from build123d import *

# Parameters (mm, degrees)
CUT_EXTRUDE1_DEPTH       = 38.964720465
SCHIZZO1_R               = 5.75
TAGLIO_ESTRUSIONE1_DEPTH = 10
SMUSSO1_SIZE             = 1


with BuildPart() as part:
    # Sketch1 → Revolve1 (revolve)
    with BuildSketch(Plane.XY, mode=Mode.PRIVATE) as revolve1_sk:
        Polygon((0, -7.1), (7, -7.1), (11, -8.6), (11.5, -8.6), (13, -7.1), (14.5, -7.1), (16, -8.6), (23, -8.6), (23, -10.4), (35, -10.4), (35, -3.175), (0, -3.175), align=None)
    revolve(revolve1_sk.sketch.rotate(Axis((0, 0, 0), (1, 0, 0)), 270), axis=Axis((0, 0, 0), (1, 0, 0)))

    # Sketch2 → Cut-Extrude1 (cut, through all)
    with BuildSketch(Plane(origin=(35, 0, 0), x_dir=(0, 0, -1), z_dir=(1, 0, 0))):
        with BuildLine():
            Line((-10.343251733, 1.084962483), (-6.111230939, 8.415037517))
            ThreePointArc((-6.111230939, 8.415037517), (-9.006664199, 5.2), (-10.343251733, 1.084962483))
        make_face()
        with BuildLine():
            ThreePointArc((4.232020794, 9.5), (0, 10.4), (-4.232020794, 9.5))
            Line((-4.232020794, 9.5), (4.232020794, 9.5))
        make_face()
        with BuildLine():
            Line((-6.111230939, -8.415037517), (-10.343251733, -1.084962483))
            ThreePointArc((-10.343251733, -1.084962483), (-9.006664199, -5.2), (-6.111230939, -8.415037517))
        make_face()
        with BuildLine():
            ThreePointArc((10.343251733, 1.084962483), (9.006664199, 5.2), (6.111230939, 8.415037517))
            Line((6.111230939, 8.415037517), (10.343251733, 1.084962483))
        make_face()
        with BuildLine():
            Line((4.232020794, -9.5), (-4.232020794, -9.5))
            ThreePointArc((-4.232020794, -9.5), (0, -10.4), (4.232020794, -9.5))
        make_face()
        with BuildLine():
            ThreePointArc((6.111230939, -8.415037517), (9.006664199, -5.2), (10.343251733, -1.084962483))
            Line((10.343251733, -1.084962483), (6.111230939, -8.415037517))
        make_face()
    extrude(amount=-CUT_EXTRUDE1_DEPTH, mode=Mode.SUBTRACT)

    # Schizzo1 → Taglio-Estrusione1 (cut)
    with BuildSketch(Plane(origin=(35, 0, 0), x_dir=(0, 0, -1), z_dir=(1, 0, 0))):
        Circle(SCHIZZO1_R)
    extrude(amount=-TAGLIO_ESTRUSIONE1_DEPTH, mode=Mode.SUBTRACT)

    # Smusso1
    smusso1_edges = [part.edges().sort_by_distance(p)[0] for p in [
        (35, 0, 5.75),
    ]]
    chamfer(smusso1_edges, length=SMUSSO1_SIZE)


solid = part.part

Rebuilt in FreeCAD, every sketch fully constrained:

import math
import FreeCAD as App
import Part
import Sketcher
from FreeCAD import Vector
Q = App.Units.Quantity


def edges_at(feature, points):
    """Names of the edges that pass closest to the given points."""
    edges = feature.Shape.Edges
    near = lambda p: min(range(len(edges)), key=lambda i: edges[i].distToShape(Part.Vertex(*p))[0])
    return sorted({f"Edge{near(p) + 1}" for p in points})

doc = App.newDocument("Part")
body = doc.addObject("PartDesign::Body", "Body")

# Sketch on XY plane
sketch1 = doc.addObject("Sketcher::SketchObject", "Sketch")
body.addObject(sketch1)
sketch1.AttachmentSupport = (doc.XY_Plane, [""])
sketch1.MapMode = "FlatFace"
sketch1.addGeometry(Part.LineSegment(Vector(0, -7.1, 0), Vector(7, -7.1, 0)), False)
sketch1.addGeometry(Part.LineSegment(Vector(7, -7.1, 0), Vector(11, -8.6, 0)), False)
sketch1.addGeometry(Part.LineSegment(Vector(11, -8.6, 0), Vector(11.5, -8.6, 0)), False)
sketch1.addGeometry(Part.LineSegment(Vector(11.5, -8.6, 0), Vector(13, -7.1, 0)), False)
sketch1.addGeometry(Part.LineSegment(Vector(13, -7.1, 0), Vector(14.5, -7.1, 0)), False)
sketch1.addGeometry(Part.LineSegment(Vector(14.5, -7.1, 0), Vector(16, -8.6, 0)), False)
sketch1.addGeometry(Part.LineSegment(Vector(16, -8.6, 0), Vector(23, -8.6, 0)), False)
sketch1.addGeometry(Part.LineSegment(Vector(23, -8.6, 0), Vector(23, -10.4, 0)), False)
sketch1.addGeometry(Part.LineSegment(Vector(23, -10.4, 0), Vector(35, -10.4, 0)), False)
sketch1.addGeometry(Part.LineSegment(Vector(35, -10.4, 0), Vector(35, -3.175, 0)), False)
sketch1.addGeometry(Part.LineSegment(Vector(35, -3.175, 0), Vector(0, -3.175, 0)), False)
sketch1.addGeometry(Part.LineSegment(Vector(0, -3.175, 0), Vector(0, -7.1, 0)), False)
sketch1.addConstraint(Sketcher.Constraint("Coincident", 0, 2, 1, 1))
sketch1.addConstraint(Sketcher.Constraint("Coincident", 1, 2, 2, 1))
sketch1.addConstraint(Sketcher.Constraint("Coincident", 2, 2, 3, 1))
sketch1.addConstraint(Sketcher.Constraint("Coincident", 3, 2, 4, 1))
sketch1.addConstraint(Sketcher.Constraint("Coincident", 4, 2, 5, 1))
sketch1.addConstraint(Sketcher.Constraint("Coincident", 5, 2, 6, 1))
sketch1.addConstraint(Sketcher.Constraint("Coincident", 6, 2, 7, 1))
sketch1.addConstraint(Sketcher.Constraint("Coincident", 7, 2, 8, 1))
sketch1.addConstraint(Sketcher.Constraint("Coincident", 8, 2, 9, 1))
sketch1.addConstraint(Sketcher.Constraint("Coincident", 9, 2, 10, 1))
sketch1.addConstraint(Sketcher.Constraint("Coincident", 10, 2, 11, 1))
sketch1.addConstraint(Sketcher.Constraint("Coincident", 11, 2, 0, 1))
sketch1.addConstraint(Sketcher.Constraint("Horizontal", 0))
sketch1.addConstraint(Sketcher.Constraint("Horizontal", 2))
sketch1.addConstraint(Sketcher.Constraint("Horizontal", 4))
sketch1.addConstraint(Sketcher.Constraint("Horizontal", 6))
sketch1.addConstraint(Sketcher.Constraint("Vertical", 7))
sketch1.addConstraint(Sketcher.Constraint("Horizontal", 8))
sketch1.addConstraint(Sketcher.Constraint("Vertical", 9))
sketch1.addConstraint(Sketcher.Constraint("Horizontal", 10))
sketch1.addConstraint(Sketcher.Constraint("Vertical", 11))
sketch1.addConstraint(Sketcher.Constraint("PointOnObject", 10, 2, -2))
sketch1.addConstraint(Sketcher.Constraint("Perpendicular", 3, 5))
sketch1.addConstraint(Sketcher.Constraint("Horizontal", 0, 2, 3, 2))
sketch1.addConstraint(Sketcher.Constraint("Horizontal", 2, 2, 5, 2))
sketch1.addConstraint(Sketcher.Constraint("Equal", 0, 6))
sketch1.addConstraint(Sketcher.Constraint("Equal", 3, 5))
sketch1.addConstraint(Sketcher.Constraint("DistanceX", 0, 1, 0, 2, Q("7 mm")))
sketch1.addConstraint(Sketcher.Constraint("DistanceX", 8, 1, 8, 2, Q("12 mm")))
sketch1.addConstraint(Sketcher.Constraint("DistanceX", 10, 2, 10, 1, Q("35 mm")))
sketch1.addConstraint(Sketcher.Constraint("DistanceX", 2, 1, 2, 2, Q("0.5 mm")))
sketch1.addConstraint(Sketcher.Constraint("DistanceX", 4, 1, 4, 2, Q("1.5 mm")))
sketch1.addConstraint(Sketcher.Constraint("DistanceY", 7, 2, 7, 1, Q("1.8 mm")))
sketch1.addConstraint(Sketcher.Constraint("DistanceX", -1, 1, 1, 2, Q("11 mm")))
sketch1.addConstraint(Sketcher.Constraint("DistanceY", 0, 2, -1, 1, Q("7.1 mm")))
sketch1.addConstraint(Sketcher.Constraint("DistanceY", 9, 1, 9, 2, Q("7.225 mm")))
revolution = doc.addObject("PartDesign::Revolution", "Revolution")
body.addObject(revolution)
revolution.Profile = sketch1
revolution.ReferenceAxis = (sketch1, ["H_Axis"])
revolution.Angle = 360

# Sketch on YZ plane
sketch2 = doc.addObject("Sketcher::SketchObject", "Sketch001")
body.addObject(sketch2)
sketch2.AttachmentSupport = (doc.YZ_Plane, [""])
sketch2.MapMode = "FlatFace"
sketch2.AttachmentOffset = App.Placement(Vector(0, 0, 35), App.Rotation())
sketch2.addGeometry(Part.LineSegment(Vector(1.084962, 10.343252, 0), Vector(8.415038, 6.111231, 0)), False)
sketch2.addGeometry(Part.ArcOfCircle(Part.Circle(Vector(0, 0, 0), Vector(0, 0, 1), 10.4), math.radians(35.988181), math.radians(84.011819)), False)
sketch2.addGeometry(Part.ArcOfCircle(Part.Circle(Vector(0, 0, 0), Vector(0, 0, 1), 10.4), math.radians(-24.011819), math.radians(24.011819)), False)
sketch2.addGeometry(Part.LineSegment(Vector(9.5, 4.232021, 0), Vector(9.5, -4.232021, 0)), False)
sketch2.addGeometry(Part.LineSegment(Vector(-8.415038, 6.111231, 0), Vector(-1.084962, 10.343252, 0)), False)
sketch2.addGeometry(Part.ArcOfCircle(Part.Circle(Vector(0, 0, 0), Vector(0, 0, 1), 10.4), math.radians(95.988181), math.radians(144.011819)), False)
sketch2.addGeometry(Part.ArcOfCircle(Part.Circle(Vector(0, 0, 0), Vector(0, 0, 1), 10.4), math.radians(-84.011819), math.radians(-35.988181)), False)
sketch2.addGeometry(Part.LineSegment(Vector(8.415038, -6.111231, 0), Vector(1.084962, -10.343252, 0)), False)
sketch2.addGeometry(Part.LineSegment(Vector(-9.5, -4.232021, 0), Vector(-9.5, 4.232021, 0)), False)
sketch2.addGeometry(Part.ArcOfCircle(Part.Circle(Vector(0, 0, 0), Vector(0, 0, 1), 10.4), math.radians(155.988181), math.radians(204.011819)), False)
sketch2.addGeometry(Part.ArcOfCircle(Part.Circle(Vector(0, 0, 0), Vector(0, 0, 1), 10.4), math.radians(-144.011819), math.radians(-95.988181)), False)
sketch2.addGeometry(Part.LineSegment(Vector(-1.084962, -10.343252, 0), Vector(-8.415038, -6.111231, 0)), False)
sketch2.addConstraint(Sketcher.Constraint("Coincident", 0, 1, 1, 2))
sketch2.addConstraint(Sketcher.Constraint("Coincident", 1, 1, 0, 2))
sketch2.addConstraint(Sketcher.Constraint("Coincident", 2, 1, 3, 2))
sketch2.addConstraint(Sketcher.Constraint("Coincident", 3, 1, 2, 2))
sketch2.addConstraint(Sketcher.Constraint("Coincident", 4, 1, 5, 2))
sketch2.addConstraint(Sketcher.Constraint("Coincident", 5, 1, 4, 2))
sketch2.addConstraint(Sketcher.Constraint("Coincident", 6, 1, 7, 2))
sketch2.addConstraint(Sketcher.Constraint("Coincident", 7, 1, 6, 2))
sketch2.addConstraint(Sketcher.Constraint("Coincident", 8, 1, 9, 2))
sketch2.addConstraint(Sketcher.Constraint("Coincident", 9, 1, 8, 2))
sketch2.addConstraint(Sketcher.Constraint("Coincident", 10, 1, 11, 2))
sketch2.addConstraint(Sketcher.Constraint("Coincident", 11, 1, 10, 2))
sketch2.addConstraint(Sketcher.Constraint("Vertical", 3))
sketch2.addConstraint(Sketcher.Constraint("Vertical", 8))
sketch2.addConstraint(Sketcher.Constraint("Coincident", 1, 3, -1, 1))
sketch2.addConstraint(Sketcher.Constraint("Coincident", 2, 3, -1, 1))
sketch2.addConstraint(Sketcher.Constraint("Coincident", 5, 3, -1, 1))
sketch2.addConstraint(Sketcher.Constraint("Coincident", 6, 3, -1, 1))
sketch2.addConstraint(Sketcher.Constraint("Coincident", 9, 3, -1, 1))
sketch2.addConstraint(Sketcher.Constraint("Coincident", 10, 3, -1, 1))
sketch2.addConstraint(Sketcher.Constraint("Equal", 1, 2))
sketch2.addConstraint(Sketcher.Constraint("Equal", 2, 5))
sketch2.addConstraint(Sketcher.Constraint("Equal", 5, 6))
sketch2.addConstraint(Sketcher.Constraint("Equal", 6, 9))
sketch2.addConstraint(Sketcher.Constraint("Equal", 9, 10))
sketch2.addConstraint(Sketcher.Constraint("Parallel", 4, 7))
sketch2.addConstraint(Sketcher.Constraint("Parallel", 0, 11))
sketch2.addConstraint(Sketcher.Constraint("Horizontal", 1, 1, 4, 1))
sketch2.addConstraint(Sketcher.Constraint("Horizontal", 0, 1, 5, 1))
sketch2.addConstraint(Sketcher.Constraint("Horizontal", 2, 1, 8, 1))
sketch2.addConstraint(Sketcher.Constraint("Horizontal", 7, 1, 10, 1))
sketch2.addConstraint(Sketcher.Constraint("Vertical", 0, 1, 6, 1))
sketch2.addConstraint(Sketcher.Constraint("Radius", 1, Q("10.4 mm")))
sketch2.addConstraint(Sketcher.Constraint("Angle", 0, Q("-30 deg")))
sketch2.addConstraint(Sketcher.Constraint("DistanceX", -1, 1, 2, 1, Q("9.5 mm")))
sketch2.addConstraint(Sketcher.Constraint("DistanceX", 4, 1, 0, 1, Q("9.5 mm")))
pocket1 = doc.addObject("PartDesign::Pocket", "Pocket")
body.addObject(pocket1)
pocket1.Profile = sketch2
pocket1.Type = "ThroughAll"

# Sketch on YZ plane
sketch3 = doc.addObject("Sketcher::SketchObject", "Sketch002")
body.addObject(sketch3)
sketch3.AttachmentSupport = (doc.YZ_Plane, [""])
sketch3.MapMode = "FlatFace"
sketch3.AttachmentOffset = App.Placement(Vector(0, 0, 35), App.Rotation())
sketch3.addGeometry(Part.Circle(Vector(0, 0, 0), Vector(0, 0, 1), 5.75), False)
sketch3.addConstraint(Sketcher.Constraint("Coincident", 0, 3, -1, 1))
sketch3.addConstraint(Sketcher.Constraint("Diameter", 0, Q("11.5 mm")))
pocket2 = doc.addObject("PartDesign::Pocket", "Pocket001")
body.addObject(pocket2)
pocket2.Profile = sketch3
pocket2.Length = 10
doc.recompute()

chamfer = doc.addObject("PartDesign::Chamfer", "Chamfer")
body.addObject(chamfer)
chamfer.Base = (pocket2, edges_at(pocket2, [(35, 0, 5.75)]))
chamfer.Size = 1

doc.recompute()
